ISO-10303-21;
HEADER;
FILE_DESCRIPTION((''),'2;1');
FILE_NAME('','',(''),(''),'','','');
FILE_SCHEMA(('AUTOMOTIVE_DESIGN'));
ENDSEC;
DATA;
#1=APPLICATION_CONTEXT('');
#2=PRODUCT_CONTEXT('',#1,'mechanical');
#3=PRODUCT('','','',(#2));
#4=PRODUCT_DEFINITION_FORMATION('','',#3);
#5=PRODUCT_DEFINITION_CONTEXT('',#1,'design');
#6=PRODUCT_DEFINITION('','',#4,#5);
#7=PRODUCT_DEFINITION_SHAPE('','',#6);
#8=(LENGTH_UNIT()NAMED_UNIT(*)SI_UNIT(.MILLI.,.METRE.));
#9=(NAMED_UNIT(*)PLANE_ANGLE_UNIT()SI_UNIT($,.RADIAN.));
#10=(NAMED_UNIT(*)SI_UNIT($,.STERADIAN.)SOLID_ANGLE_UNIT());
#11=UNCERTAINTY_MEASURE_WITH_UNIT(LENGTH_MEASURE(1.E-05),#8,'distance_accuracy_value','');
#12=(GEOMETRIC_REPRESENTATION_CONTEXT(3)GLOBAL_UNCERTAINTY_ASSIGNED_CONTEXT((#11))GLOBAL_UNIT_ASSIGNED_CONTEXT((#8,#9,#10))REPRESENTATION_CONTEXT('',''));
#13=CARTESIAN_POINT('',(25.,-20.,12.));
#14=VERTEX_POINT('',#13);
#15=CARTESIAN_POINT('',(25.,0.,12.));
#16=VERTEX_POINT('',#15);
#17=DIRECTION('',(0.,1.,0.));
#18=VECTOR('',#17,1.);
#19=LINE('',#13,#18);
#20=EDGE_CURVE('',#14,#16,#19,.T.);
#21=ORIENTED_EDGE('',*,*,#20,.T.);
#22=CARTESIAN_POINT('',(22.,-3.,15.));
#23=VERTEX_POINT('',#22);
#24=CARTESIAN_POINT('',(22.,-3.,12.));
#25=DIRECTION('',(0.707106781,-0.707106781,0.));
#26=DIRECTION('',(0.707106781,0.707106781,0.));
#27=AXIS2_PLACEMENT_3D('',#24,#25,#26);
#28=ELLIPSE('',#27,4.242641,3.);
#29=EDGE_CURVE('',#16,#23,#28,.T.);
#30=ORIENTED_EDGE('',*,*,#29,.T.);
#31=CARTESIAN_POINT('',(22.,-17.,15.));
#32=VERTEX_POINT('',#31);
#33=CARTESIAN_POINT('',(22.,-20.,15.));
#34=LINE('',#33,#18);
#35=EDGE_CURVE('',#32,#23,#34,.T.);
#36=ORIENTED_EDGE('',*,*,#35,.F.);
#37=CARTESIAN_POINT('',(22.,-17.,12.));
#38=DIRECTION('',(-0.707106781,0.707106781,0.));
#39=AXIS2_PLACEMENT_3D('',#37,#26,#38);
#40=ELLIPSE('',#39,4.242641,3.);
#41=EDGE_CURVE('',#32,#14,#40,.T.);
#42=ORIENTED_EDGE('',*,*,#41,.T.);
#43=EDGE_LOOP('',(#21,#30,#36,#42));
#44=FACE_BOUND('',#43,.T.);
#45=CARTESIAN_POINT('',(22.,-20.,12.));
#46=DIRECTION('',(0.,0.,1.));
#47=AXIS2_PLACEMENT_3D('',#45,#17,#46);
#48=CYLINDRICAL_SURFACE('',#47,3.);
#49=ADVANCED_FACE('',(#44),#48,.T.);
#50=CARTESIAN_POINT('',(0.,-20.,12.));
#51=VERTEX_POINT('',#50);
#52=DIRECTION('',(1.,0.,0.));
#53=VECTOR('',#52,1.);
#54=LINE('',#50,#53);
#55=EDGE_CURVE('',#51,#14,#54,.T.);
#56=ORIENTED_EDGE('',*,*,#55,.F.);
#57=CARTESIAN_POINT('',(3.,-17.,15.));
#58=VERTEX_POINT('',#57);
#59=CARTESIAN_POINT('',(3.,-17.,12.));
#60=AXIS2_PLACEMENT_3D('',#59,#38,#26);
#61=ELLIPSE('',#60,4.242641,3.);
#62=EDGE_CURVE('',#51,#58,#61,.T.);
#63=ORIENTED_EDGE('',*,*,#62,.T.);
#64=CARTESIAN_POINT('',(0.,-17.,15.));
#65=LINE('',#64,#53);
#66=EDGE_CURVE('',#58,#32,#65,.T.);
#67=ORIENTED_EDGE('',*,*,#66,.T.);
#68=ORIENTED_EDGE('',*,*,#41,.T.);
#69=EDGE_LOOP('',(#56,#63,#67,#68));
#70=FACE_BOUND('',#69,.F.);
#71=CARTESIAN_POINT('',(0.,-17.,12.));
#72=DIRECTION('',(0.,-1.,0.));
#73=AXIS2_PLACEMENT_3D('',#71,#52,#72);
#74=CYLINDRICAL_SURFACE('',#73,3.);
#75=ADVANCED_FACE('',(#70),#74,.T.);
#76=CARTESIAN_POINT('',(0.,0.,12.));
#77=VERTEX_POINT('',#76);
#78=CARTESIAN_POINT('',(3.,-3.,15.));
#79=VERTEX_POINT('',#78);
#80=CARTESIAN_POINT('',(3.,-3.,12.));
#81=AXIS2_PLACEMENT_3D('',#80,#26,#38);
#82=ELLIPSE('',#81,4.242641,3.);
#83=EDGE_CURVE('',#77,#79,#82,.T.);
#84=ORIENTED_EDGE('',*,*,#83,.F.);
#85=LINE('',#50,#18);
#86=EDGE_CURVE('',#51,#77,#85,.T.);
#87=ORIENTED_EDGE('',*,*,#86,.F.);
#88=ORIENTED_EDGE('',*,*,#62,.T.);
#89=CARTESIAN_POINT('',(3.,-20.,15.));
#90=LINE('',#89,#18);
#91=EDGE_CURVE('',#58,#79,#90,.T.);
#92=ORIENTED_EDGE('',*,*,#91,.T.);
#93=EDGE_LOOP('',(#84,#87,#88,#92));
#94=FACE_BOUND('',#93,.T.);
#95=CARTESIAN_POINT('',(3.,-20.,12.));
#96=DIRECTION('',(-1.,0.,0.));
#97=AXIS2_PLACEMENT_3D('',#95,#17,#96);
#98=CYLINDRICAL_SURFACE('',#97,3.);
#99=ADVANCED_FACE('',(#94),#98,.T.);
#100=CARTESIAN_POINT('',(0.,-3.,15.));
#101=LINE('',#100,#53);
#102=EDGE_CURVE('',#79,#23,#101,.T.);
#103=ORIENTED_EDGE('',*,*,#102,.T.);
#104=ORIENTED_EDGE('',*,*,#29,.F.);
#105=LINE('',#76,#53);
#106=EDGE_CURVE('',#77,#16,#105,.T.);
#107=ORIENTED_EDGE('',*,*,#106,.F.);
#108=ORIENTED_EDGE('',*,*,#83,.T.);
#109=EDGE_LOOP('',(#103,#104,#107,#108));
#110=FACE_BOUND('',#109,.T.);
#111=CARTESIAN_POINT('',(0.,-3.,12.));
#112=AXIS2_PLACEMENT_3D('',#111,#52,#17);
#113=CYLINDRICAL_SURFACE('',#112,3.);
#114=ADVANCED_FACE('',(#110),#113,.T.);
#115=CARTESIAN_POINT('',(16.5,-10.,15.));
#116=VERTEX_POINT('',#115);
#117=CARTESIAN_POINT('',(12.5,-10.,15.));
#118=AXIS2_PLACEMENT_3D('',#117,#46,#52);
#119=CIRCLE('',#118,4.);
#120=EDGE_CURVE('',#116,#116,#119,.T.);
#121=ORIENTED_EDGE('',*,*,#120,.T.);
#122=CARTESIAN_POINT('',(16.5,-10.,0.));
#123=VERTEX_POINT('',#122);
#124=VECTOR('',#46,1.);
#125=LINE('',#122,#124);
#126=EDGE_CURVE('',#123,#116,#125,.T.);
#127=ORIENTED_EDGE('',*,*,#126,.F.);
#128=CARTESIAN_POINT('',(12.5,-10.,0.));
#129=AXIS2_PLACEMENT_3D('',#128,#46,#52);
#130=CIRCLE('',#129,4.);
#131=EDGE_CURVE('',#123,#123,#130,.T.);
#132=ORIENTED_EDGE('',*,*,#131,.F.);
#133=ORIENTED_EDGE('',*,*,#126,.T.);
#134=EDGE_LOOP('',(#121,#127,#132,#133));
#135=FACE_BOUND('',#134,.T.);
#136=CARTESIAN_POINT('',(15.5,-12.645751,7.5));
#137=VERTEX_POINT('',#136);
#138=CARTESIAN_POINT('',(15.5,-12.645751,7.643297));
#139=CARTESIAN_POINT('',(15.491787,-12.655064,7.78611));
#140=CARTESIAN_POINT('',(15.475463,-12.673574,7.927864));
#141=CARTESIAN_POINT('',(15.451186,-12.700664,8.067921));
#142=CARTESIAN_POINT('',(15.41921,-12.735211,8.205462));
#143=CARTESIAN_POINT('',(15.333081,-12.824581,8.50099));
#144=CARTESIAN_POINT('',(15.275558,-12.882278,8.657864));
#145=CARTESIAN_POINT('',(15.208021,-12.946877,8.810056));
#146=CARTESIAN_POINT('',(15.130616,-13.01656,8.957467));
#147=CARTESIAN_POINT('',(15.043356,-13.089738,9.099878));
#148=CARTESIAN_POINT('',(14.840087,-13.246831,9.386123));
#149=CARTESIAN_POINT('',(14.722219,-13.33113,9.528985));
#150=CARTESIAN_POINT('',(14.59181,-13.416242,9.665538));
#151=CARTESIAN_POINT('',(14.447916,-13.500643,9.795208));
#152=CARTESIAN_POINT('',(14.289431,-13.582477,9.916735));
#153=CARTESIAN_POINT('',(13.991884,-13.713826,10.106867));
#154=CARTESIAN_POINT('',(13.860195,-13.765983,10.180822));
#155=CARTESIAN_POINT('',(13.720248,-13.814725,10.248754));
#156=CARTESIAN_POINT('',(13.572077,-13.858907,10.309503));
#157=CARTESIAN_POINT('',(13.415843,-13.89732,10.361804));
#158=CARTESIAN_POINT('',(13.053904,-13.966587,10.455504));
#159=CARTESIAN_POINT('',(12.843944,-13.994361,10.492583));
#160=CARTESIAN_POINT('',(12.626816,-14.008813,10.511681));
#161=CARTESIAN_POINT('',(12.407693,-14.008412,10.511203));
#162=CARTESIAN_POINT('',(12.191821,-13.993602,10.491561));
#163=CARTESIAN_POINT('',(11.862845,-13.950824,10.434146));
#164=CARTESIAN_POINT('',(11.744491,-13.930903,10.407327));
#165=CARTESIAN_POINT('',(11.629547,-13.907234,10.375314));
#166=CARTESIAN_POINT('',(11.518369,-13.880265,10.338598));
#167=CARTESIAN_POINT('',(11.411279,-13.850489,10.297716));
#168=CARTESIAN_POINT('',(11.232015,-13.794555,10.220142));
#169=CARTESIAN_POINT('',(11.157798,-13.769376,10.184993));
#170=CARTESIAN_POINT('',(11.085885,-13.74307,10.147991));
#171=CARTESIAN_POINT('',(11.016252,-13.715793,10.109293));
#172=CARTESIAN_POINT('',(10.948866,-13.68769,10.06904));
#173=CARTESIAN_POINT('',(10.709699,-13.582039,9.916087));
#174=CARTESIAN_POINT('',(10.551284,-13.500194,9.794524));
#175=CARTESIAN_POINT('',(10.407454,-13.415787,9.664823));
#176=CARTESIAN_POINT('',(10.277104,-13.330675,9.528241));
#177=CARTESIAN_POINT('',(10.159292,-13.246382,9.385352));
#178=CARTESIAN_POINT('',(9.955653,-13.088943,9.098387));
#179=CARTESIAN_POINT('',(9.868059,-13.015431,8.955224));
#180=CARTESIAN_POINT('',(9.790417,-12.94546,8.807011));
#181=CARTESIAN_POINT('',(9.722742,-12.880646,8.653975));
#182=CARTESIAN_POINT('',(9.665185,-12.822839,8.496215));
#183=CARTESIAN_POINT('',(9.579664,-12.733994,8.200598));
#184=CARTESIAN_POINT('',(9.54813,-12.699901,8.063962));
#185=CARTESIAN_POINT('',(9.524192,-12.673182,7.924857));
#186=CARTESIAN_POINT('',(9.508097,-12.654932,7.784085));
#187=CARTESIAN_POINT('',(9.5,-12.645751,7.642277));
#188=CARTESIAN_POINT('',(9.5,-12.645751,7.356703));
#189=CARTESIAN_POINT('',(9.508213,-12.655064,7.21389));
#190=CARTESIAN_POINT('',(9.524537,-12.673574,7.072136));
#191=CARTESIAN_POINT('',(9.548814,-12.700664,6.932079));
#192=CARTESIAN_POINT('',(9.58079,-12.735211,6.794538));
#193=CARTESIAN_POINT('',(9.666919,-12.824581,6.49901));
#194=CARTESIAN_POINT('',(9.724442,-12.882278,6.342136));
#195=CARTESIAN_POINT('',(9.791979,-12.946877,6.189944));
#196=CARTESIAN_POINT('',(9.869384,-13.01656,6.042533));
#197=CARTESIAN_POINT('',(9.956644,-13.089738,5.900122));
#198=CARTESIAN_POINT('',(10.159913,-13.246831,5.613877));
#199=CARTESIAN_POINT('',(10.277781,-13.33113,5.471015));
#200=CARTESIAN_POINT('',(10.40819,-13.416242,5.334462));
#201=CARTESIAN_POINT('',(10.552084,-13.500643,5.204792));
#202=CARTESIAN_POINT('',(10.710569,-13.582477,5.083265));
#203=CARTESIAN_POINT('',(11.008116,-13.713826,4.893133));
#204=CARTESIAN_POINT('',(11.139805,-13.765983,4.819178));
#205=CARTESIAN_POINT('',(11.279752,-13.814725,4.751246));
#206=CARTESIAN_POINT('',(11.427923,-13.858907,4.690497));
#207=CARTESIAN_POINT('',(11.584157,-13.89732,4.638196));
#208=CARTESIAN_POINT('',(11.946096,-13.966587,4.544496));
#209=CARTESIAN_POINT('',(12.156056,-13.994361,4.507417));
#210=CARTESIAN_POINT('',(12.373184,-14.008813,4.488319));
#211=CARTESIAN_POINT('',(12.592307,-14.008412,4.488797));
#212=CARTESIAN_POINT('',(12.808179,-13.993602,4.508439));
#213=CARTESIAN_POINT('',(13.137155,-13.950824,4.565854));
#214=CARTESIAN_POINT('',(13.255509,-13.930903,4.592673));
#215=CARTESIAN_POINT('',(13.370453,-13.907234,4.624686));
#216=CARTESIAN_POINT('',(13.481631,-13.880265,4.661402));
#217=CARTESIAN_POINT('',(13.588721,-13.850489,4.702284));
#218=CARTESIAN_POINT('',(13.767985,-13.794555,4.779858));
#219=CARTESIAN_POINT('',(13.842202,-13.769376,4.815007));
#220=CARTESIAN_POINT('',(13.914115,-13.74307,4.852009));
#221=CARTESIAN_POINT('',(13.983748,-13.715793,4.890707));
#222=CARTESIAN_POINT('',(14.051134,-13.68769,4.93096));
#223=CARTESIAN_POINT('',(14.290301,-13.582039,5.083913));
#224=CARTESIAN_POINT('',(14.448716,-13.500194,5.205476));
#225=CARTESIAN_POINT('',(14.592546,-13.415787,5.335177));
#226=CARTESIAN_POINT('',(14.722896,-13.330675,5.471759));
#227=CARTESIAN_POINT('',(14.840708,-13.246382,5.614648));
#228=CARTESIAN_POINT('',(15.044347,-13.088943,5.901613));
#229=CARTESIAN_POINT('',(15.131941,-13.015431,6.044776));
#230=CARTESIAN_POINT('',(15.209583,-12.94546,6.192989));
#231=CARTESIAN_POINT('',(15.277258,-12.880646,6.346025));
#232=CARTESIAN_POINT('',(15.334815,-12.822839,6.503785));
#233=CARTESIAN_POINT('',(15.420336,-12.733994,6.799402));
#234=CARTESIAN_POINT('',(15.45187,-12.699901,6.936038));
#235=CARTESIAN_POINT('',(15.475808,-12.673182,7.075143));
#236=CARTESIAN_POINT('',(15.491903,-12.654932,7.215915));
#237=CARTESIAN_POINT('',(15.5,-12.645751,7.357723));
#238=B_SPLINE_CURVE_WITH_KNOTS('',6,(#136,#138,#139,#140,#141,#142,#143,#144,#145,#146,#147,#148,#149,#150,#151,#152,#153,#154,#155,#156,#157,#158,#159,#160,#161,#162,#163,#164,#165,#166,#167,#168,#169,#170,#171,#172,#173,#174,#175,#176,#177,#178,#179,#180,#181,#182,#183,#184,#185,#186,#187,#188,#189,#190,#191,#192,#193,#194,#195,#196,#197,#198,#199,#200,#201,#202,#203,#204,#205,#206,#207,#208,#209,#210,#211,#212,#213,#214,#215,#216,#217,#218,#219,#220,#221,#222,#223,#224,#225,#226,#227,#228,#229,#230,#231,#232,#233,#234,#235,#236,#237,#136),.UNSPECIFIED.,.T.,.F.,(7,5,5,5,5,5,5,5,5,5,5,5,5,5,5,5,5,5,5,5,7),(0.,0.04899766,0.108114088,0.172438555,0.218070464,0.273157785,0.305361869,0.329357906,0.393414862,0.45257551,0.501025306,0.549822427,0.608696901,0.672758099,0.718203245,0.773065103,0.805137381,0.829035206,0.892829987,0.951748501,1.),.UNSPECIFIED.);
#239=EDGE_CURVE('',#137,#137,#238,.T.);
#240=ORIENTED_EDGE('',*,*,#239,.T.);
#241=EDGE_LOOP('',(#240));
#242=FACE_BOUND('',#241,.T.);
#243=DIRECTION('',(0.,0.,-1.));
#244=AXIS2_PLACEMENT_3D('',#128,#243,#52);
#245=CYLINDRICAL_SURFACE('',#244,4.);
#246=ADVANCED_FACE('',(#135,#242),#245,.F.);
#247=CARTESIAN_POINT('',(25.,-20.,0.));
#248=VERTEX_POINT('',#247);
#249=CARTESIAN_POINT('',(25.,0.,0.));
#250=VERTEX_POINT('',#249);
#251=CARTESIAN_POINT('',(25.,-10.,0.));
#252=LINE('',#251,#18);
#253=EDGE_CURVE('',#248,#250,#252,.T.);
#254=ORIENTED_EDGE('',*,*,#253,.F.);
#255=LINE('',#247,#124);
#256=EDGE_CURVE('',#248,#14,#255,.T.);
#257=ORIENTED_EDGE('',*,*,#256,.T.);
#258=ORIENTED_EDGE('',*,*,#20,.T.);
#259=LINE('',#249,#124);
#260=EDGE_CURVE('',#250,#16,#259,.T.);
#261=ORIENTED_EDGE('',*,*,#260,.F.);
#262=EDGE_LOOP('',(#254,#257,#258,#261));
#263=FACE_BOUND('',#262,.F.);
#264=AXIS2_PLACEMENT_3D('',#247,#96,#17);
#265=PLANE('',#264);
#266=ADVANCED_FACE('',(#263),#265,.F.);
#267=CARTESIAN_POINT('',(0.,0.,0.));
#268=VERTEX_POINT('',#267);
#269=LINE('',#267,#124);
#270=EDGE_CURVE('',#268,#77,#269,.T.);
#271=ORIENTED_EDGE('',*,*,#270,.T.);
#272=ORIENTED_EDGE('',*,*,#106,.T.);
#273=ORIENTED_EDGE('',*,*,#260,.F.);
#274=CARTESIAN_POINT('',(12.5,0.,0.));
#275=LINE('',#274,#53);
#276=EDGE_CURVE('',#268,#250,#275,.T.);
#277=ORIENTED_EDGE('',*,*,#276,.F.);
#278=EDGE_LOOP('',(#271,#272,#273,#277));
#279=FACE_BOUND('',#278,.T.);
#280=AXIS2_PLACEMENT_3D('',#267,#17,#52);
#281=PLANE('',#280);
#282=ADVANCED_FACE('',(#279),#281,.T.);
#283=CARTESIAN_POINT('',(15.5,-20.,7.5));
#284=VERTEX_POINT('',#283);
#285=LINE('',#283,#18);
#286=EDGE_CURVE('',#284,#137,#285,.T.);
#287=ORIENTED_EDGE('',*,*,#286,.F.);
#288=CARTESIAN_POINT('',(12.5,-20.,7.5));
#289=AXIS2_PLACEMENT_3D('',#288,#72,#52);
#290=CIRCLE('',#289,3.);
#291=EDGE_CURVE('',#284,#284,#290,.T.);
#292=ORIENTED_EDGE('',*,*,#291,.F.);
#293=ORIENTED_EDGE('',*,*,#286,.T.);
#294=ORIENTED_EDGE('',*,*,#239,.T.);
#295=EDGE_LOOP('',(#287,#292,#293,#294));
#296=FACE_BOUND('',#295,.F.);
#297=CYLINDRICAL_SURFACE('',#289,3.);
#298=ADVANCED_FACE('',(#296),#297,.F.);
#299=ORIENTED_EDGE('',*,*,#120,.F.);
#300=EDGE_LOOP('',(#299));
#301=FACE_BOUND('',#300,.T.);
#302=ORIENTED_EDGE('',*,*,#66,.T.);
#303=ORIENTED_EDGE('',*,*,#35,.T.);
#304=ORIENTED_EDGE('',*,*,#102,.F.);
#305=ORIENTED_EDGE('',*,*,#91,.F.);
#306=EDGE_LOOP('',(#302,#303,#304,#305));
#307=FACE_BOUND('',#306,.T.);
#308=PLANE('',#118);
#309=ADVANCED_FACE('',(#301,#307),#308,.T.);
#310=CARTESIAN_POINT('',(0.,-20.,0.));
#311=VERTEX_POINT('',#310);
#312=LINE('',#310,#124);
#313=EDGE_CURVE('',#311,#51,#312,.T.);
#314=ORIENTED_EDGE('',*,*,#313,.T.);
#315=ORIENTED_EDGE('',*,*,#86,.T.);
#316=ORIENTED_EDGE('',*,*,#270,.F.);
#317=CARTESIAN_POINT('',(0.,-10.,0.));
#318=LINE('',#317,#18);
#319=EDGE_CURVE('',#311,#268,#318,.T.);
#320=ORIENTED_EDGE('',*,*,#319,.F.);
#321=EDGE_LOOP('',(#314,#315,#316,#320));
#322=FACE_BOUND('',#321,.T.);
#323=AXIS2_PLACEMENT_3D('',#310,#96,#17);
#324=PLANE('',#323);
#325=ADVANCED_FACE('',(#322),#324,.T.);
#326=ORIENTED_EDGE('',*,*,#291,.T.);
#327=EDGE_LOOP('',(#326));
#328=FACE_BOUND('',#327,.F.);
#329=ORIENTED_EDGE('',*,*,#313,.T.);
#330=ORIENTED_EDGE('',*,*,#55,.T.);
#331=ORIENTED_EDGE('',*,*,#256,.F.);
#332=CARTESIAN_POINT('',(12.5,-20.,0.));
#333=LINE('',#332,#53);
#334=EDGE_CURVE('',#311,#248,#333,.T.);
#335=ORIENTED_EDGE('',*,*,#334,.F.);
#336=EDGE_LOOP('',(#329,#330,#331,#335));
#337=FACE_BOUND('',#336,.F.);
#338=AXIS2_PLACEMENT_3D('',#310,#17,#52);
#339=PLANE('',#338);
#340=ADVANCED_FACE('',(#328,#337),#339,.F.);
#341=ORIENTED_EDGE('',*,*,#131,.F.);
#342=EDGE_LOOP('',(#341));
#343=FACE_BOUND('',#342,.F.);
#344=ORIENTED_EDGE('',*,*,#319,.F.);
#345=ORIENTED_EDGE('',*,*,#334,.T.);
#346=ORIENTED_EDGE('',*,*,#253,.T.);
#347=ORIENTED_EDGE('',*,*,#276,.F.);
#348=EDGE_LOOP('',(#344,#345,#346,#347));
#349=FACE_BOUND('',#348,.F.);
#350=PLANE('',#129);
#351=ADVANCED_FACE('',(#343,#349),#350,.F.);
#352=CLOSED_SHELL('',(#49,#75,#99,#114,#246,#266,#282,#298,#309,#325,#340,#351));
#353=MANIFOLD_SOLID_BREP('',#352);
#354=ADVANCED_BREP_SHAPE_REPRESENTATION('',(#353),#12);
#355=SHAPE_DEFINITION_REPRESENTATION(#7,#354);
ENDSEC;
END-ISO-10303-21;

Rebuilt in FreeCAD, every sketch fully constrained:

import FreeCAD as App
import Part
import Sketcher

V = App.Vector
Q = App.Units.Quantity


def edges_at(feature, points):
    """Names of the edges that pass closest to the given points."""
    edges = feature.Shape.Edges
    near = lambda p: min(range(len(edges)), key=lambda i: edges[i].distToShape(Part.Vertex(*p))[0])
    return sorted({f"Edge{near(p) + 1}" for p in points})


def add_polygon(sketch, points):
    """Adds a closed chain of lines whose ends are joined by coincident constraints."""
    first, n = sketch.GeometryCount, len(points)
    for a, b in zip(points, points[1:] + points[:1]):
        sketch.addGeometry(Part.LineSegment(App.Vector(*a, 0), App.Vector(*b, 0)), False)
    for i in range(n):
        sketch.addConstraint(Sketcher.Constraint("Coincident", first + i, 2, first + (i + 1) % n, 1))

doc = App.newDocument("Part")
body = doc.addObject("PartDesign::Body", "Body")

# Sketch on XY plane
sketch1 = body.newObject("Sketcher::SketchObject", "Sketch")
sketch1.AttachmentSupport = (doc.getObject("XY_Plane"), [""])
sketch1.MapMode = "FlatFace"
add_polygon(sketch1, [(0, 0), (0, -20), (25, -20), (25, 0)])  # lines 0-3
sketch1.addGeometry(Part.Circle(V(12.5, -10, 0), V(0, 0, 1), 4), False)  # 4
sketch1.addConstraint([
    Sketcher.Constraint("Vertical", 0),
    Sketcher.Constraint("Horizontal", 1),
    Sketcher.Constraint("Vertical", 2),
    Sketcher.Constraint("Horizontal", 3),
    Sketcher.Constraint("Coincident", 3, 2, -1, 1),
    Sketcher.Constraint("Diameter", 4, Q("8 mm")),
    Sketcher.Constraint("DistanceX", 1, 1, 1, 2, Q("25 mm")),
    Sketcher.Constraint("DistanceY", 0, 2, 0, 1, Q("20 mm")),
    Sketcher.Constraint("DistanceY", 4, 3, -1, 1, Q("10 mm")),
    Sketcher.Constraint("DistanceX", -1, 1, 4, 3, Q("12.5 mm")),
])
pad1 = body.newObject("PartDesign::Pad", "Pad")
pad1.Profile = sketch1
pad1.Length = 15

# Sketch on XZ plane
sketch2 = body.newObject("Sketcher::SketchObject", "Sketch001")
sketch2.AttachmentSupport = (doc.getObject("XZ_Plane"), [""])
sketch2.MapMode = "FlatFace"
sketch2.AttachmentOffset = App.Placement(V(0, 0, 20), App.Rotation())
sketch2.addGeometry(Part.Circle(V(12.5, 7.5, 0), V(0, 0, 1), 3), False)
sketch2.addConstraint([
    Sketcher.Constraint("Diameter", 0, Q("6 mm")),
    Sketcher.Constraint("DistanceX", -1, 1, 0, 3, Q("12.5 mm")),
    Sketcher.Constraint("DistanceY", -1, 1, 0, 3, Q("7.5 mm")),
])
pocket1 = body.newObject("PartDesign::Pocket", "Pocket")
pocket1.Profile = sketch2
pocket1.Length = 10
doc.recompute()

fillet = body.newObject("PartDesign::Fillet", "Fillet")
fillet.Base = (pocket1, edges_at(pocket1, [
    (0, -10, 15),
    (12.5, 0, 15),
    (25, -10, 15),
    (12.5, -20, 15),
]))
fillet.Radius = 3

doc.recompute()
